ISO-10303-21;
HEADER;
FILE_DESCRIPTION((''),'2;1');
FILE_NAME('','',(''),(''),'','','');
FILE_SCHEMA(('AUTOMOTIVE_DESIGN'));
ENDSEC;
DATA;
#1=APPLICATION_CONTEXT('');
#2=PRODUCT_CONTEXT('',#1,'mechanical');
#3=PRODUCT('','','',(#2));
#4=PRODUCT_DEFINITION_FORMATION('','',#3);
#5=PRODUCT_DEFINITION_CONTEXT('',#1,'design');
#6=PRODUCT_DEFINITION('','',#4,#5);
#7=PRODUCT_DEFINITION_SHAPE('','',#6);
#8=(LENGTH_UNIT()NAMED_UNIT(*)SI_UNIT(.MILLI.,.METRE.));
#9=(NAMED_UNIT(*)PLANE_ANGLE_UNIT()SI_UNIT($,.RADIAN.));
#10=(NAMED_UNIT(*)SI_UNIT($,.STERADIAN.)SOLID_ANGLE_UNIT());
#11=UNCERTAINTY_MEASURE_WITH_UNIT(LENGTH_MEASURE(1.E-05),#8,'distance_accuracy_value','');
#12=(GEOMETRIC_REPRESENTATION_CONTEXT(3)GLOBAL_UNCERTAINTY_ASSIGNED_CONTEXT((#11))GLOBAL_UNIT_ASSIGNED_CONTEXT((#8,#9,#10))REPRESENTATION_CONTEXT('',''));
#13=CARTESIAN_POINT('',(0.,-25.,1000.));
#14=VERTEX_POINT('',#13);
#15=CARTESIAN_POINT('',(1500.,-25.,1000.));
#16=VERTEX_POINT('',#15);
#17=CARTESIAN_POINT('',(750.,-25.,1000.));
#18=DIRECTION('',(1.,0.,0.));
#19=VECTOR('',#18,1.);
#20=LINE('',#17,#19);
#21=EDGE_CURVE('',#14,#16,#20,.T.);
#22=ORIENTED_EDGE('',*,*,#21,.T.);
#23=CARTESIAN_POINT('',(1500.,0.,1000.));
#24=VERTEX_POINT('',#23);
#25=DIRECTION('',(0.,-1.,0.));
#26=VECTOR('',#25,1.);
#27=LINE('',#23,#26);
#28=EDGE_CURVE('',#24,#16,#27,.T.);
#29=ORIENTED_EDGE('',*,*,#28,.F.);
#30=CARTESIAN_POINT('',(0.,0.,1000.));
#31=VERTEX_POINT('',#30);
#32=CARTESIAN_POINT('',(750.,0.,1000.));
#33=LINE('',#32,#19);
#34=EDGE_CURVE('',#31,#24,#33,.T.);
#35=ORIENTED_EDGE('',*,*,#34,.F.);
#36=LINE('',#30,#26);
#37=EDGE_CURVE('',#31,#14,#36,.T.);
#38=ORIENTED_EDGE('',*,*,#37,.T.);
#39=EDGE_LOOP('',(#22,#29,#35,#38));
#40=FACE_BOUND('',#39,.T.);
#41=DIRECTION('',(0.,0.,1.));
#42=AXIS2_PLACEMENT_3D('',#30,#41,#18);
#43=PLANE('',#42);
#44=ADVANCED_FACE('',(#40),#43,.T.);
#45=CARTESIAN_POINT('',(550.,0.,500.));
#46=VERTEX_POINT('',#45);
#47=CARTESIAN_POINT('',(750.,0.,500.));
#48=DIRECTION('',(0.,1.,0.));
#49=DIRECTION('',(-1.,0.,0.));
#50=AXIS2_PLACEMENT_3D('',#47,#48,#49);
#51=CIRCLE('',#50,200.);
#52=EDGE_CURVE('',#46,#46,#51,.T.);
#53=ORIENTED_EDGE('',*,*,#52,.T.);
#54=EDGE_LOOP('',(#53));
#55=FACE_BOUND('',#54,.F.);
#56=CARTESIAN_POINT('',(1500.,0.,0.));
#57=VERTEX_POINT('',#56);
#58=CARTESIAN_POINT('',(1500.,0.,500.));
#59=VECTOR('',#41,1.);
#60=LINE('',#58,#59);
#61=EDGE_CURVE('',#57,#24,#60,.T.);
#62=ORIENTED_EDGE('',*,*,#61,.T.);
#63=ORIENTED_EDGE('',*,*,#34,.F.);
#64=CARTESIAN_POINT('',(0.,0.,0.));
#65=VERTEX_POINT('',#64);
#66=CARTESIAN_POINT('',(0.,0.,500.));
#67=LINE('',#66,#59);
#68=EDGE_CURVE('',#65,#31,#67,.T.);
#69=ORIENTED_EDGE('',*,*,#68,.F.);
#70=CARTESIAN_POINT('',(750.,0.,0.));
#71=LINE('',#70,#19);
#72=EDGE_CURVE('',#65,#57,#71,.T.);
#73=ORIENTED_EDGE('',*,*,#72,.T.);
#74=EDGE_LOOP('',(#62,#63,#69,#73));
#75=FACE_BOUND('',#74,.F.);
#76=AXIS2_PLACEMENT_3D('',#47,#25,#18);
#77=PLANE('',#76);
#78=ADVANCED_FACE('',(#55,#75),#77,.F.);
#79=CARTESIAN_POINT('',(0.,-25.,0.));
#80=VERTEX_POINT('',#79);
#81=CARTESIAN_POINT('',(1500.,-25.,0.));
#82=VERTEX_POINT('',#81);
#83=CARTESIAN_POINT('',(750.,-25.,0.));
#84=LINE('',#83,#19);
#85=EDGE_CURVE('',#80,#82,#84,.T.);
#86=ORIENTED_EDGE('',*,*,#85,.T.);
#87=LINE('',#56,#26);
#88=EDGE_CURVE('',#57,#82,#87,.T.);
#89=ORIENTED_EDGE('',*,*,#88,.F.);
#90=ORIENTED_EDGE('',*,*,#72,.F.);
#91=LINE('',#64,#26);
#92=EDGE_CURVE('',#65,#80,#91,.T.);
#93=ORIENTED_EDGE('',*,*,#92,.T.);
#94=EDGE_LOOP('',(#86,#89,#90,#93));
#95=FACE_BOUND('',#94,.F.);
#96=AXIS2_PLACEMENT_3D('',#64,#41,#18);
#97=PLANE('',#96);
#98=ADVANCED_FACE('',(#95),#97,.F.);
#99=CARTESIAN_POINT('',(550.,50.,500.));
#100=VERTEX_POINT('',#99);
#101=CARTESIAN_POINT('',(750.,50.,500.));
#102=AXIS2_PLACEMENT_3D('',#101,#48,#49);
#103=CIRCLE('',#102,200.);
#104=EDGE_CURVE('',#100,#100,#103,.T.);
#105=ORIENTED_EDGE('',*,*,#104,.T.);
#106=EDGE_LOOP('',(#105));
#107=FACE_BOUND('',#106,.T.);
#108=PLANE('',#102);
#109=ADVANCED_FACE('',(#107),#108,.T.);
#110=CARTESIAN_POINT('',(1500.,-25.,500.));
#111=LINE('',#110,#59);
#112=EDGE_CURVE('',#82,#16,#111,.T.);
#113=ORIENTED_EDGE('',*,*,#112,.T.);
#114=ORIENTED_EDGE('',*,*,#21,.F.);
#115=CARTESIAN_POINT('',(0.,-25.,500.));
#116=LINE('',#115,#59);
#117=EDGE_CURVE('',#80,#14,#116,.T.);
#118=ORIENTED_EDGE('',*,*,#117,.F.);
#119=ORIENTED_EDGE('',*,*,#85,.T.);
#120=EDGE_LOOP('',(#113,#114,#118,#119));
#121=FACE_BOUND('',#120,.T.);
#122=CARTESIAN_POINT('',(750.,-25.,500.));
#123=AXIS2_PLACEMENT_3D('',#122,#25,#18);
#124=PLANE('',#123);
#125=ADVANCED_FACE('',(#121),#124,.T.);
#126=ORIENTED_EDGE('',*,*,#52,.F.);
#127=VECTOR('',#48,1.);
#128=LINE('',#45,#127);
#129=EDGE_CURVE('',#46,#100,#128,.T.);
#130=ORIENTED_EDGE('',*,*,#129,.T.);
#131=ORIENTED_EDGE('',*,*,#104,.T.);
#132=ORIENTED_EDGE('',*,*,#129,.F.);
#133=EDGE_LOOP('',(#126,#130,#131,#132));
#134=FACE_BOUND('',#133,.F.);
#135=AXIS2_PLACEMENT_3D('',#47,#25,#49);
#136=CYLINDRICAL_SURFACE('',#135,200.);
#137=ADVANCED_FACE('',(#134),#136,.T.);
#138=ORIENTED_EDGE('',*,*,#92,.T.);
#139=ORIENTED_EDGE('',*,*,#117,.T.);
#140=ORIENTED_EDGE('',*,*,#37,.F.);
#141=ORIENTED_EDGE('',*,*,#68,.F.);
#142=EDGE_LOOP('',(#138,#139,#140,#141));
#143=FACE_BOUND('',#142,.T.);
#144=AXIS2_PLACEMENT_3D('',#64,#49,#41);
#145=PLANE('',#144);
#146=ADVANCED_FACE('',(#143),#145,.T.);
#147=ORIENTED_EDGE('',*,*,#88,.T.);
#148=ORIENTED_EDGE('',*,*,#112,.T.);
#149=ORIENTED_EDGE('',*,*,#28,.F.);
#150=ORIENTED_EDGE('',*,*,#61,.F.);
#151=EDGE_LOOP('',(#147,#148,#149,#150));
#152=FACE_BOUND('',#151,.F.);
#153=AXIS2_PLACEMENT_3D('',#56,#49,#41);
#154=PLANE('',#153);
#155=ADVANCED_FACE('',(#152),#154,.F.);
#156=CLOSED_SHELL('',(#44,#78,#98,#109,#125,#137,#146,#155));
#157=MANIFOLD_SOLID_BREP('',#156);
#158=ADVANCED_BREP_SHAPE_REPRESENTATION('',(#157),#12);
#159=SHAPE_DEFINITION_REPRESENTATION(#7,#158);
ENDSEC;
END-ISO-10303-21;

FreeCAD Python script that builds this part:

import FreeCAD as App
import Part
import Sketcher
from FreeCAD import Vector
Q = App.Units.Quantity


def add_polygon(sketch, points):
    """Adds a closed chain of lines whose ends are joined by coincident constraints."""
    first, n = sketch.GeometryCount, len(points)
    for a, b in zip(points, points[1:] + points[:1]):
        sketch.addGeometry(Part.LineSegment(App.Vector(*a, 0), App.Vector(*b, 0)), False)
    for i in range(n):
        sketch.addConstraint(Sketcher.Constraint("Coincident", first + i, 2, first + (i + 1) % n, 1))

doc = App.newDocument("Part")
params = doc.addObject("Spreadsheet::Sheet", "Params")
for row, (alias, value) in enumerate([
    ("sketch1_width", "1500 mm"),
    ("sketch1_height", "1000 mm"),
    ("pad1_length", "25 mm"),
    ("sketch2_diameter", "400 mm"),
    ("pad2_length", "50 mm"),
], start=1):
    params.set(f"A{row}", alias)
    params.set(f"B{row}", "=" + value)
    params.setAlias(f"B{row}", alias)

body = doc.addObject("PartDesign::Body", "Body")

# Sketch on XZ plane
sketch1 = body.newObject("Sketcher::SketchObject", "Sketch")
sketch1.AttachmentSupport = (doc.getObject("XZ_Plane"), [""])
sketch1.MapMode = "FlatFace"
add_polygon(sketch1, [(0, 1000), (0, 0), (1500, 0), (1500, 1000)])  # lines 0-3
sketch1.addConstraint([
    Sketcher.Constraint("Vertical", 0),
    Sketcher.Constraint("Horizontal", 1),
    Sketcher.Constraint("Vertical", 2),
    Sketcher.Constraint("Horizontal", 3),
    Sketcher.Constraint("Coincident", 0, 2, -1, 1),
    Sketcher.Constraint("DistanceX", 1, 1, 1, 2, Q("1500 mm")),
    Sketcher.Constraint("DistanceY", 0, 2, 0, 1, Q("1000 mm")),
])
sketch1.setExpression("Constraints[9]", "Params.sketch1_width")
sketch1.setExpression("Constraints[10]", "Params.sketch1_height")
pad1 = body.newObject("PartDesign::Pad", "Pad")
pad1.Profile = sketch1
pad1.setExpression("Length", "Params.pad1_length")

# Sketch on XZ plane
sketch2 = body.newObject("Sketcher::SketchObject", "Sketch001")
sketch2.AttachmentSupport = (doc.getObject("XZ_Plane"), [""])
sketch2.MapMode = "FlatFace"
sketch2.addGeometry(Part.Circle(Vector(750, 500, 0), Vector(0, 0, 1), 200), False)
sketch2.addConstraint([
    Sketcher.Constraint("Diameter", 0, Q("400 mm")),
    Sketcher.Constraint("DistanceX", -1, 1, 0, 3, Q("750 mm")),
    Sketcher.Constraint("DistanceY", -1, 1, 0, 3, Q("500 mm")),
])
sketch2.setExpression("Constraints[0]", "Params.sketch2_diameter")
pad2 = body.newObject("PartDesign::Pad", "Pad001")
pad2.Profile = sketch2
pad2.setExpression("Length", "Params.pad2_length")
pad2.Reversed = True

doc.recompute()
